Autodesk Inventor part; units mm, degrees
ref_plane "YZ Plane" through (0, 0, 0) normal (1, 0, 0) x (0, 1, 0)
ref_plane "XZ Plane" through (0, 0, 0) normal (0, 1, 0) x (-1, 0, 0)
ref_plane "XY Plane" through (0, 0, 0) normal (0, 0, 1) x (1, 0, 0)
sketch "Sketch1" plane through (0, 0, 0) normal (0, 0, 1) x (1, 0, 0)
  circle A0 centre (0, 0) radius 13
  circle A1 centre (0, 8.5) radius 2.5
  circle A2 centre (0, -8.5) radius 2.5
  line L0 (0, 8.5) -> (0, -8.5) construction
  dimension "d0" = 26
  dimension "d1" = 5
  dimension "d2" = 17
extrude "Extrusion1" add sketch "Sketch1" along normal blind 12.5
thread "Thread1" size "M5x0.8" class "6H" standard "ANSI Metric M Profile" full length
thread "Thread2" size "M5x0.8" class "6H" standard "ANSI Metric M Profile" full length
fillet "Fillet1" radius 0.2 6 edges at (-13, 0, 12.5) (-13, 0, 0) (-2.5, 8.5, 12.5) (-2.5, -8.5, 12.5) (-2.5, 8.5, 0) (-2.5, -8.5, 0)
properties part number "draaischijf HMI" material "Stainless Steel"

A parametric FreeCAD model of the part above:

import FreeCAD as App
import Part
import Sketcher

V = App.Vector
Q = App.Units.Quantity


def edges_at(feature, points):
    """Names of the edges that pass closest to the given points."""
    edges = feature.Shape.Edges
    near = lambda p: min(range(len(edges)), key=lambda i: edges[i].distToShape(Part.Vertex(*p))[0])
    return sorted({f"Edge{near(p) + 1}" for p in points})

doc = App.newDocument("Part")
body = doc.addObject("PartDesign::Body", "Body")

sketch1 = body.newObject("Sketcher::SketchObject", "Sketch")
sketch1.AttachmentSupport = (doc.getObject("XY_Plane"), [""])
sketch1.MapMode = "FlatFace"
sketch1.addGeometry([
    Part.Circle(V(0, 0, 0), V(0, 0, 1), 13),
    Part.Circle(V(0, -8.5, 0), V(0, 0, 1), 2.5),
    Part.Circle(V(0, 8.5, 0), V(0, 0, 1), 2.5),
], False)
sketch1.addConstraint([
    Sketcher.Constraint("Coincident", 0, 3, -1, 1),
    Sketcher.Constraint("Equal", 1, 2),
    Sketcher.Constraint("Symmetric", 1, 3, 2, 3, -1, 1),
    Sketcher.Constraint("PointOnObject", 1, 3, -2),
    Sketcher.Constraint("Diameter", 0, Q("26 mm")),
    Sketcher.Constraint("Diameter", 1, Q("5 mm")),
    Sketcher.Constraint("DistanceY", 1, 3, 2, 3, Q("17 mm")),
])
pad1 = body.newObject("PartDesign::Pad", "Pad")
pad1.Profile = sketch1
pad1.Length = 12.5
doc.recompute()

fillet = body.newObject("PartDesign::Fillet", "Fillet")
fillet.Base = (pad1, edges_at(pad1, [
    (-13, 0, 12.5),
    (-13, 0, 0),
    (-2.5, 8.5, 12.5),
    (-2.5, -8.5, 12.5),
    (-2.5, 8.5, 0),
    (-2.5, -8.5, 0),
]))
fillet.Radius = 0.2

doc.recompute()
